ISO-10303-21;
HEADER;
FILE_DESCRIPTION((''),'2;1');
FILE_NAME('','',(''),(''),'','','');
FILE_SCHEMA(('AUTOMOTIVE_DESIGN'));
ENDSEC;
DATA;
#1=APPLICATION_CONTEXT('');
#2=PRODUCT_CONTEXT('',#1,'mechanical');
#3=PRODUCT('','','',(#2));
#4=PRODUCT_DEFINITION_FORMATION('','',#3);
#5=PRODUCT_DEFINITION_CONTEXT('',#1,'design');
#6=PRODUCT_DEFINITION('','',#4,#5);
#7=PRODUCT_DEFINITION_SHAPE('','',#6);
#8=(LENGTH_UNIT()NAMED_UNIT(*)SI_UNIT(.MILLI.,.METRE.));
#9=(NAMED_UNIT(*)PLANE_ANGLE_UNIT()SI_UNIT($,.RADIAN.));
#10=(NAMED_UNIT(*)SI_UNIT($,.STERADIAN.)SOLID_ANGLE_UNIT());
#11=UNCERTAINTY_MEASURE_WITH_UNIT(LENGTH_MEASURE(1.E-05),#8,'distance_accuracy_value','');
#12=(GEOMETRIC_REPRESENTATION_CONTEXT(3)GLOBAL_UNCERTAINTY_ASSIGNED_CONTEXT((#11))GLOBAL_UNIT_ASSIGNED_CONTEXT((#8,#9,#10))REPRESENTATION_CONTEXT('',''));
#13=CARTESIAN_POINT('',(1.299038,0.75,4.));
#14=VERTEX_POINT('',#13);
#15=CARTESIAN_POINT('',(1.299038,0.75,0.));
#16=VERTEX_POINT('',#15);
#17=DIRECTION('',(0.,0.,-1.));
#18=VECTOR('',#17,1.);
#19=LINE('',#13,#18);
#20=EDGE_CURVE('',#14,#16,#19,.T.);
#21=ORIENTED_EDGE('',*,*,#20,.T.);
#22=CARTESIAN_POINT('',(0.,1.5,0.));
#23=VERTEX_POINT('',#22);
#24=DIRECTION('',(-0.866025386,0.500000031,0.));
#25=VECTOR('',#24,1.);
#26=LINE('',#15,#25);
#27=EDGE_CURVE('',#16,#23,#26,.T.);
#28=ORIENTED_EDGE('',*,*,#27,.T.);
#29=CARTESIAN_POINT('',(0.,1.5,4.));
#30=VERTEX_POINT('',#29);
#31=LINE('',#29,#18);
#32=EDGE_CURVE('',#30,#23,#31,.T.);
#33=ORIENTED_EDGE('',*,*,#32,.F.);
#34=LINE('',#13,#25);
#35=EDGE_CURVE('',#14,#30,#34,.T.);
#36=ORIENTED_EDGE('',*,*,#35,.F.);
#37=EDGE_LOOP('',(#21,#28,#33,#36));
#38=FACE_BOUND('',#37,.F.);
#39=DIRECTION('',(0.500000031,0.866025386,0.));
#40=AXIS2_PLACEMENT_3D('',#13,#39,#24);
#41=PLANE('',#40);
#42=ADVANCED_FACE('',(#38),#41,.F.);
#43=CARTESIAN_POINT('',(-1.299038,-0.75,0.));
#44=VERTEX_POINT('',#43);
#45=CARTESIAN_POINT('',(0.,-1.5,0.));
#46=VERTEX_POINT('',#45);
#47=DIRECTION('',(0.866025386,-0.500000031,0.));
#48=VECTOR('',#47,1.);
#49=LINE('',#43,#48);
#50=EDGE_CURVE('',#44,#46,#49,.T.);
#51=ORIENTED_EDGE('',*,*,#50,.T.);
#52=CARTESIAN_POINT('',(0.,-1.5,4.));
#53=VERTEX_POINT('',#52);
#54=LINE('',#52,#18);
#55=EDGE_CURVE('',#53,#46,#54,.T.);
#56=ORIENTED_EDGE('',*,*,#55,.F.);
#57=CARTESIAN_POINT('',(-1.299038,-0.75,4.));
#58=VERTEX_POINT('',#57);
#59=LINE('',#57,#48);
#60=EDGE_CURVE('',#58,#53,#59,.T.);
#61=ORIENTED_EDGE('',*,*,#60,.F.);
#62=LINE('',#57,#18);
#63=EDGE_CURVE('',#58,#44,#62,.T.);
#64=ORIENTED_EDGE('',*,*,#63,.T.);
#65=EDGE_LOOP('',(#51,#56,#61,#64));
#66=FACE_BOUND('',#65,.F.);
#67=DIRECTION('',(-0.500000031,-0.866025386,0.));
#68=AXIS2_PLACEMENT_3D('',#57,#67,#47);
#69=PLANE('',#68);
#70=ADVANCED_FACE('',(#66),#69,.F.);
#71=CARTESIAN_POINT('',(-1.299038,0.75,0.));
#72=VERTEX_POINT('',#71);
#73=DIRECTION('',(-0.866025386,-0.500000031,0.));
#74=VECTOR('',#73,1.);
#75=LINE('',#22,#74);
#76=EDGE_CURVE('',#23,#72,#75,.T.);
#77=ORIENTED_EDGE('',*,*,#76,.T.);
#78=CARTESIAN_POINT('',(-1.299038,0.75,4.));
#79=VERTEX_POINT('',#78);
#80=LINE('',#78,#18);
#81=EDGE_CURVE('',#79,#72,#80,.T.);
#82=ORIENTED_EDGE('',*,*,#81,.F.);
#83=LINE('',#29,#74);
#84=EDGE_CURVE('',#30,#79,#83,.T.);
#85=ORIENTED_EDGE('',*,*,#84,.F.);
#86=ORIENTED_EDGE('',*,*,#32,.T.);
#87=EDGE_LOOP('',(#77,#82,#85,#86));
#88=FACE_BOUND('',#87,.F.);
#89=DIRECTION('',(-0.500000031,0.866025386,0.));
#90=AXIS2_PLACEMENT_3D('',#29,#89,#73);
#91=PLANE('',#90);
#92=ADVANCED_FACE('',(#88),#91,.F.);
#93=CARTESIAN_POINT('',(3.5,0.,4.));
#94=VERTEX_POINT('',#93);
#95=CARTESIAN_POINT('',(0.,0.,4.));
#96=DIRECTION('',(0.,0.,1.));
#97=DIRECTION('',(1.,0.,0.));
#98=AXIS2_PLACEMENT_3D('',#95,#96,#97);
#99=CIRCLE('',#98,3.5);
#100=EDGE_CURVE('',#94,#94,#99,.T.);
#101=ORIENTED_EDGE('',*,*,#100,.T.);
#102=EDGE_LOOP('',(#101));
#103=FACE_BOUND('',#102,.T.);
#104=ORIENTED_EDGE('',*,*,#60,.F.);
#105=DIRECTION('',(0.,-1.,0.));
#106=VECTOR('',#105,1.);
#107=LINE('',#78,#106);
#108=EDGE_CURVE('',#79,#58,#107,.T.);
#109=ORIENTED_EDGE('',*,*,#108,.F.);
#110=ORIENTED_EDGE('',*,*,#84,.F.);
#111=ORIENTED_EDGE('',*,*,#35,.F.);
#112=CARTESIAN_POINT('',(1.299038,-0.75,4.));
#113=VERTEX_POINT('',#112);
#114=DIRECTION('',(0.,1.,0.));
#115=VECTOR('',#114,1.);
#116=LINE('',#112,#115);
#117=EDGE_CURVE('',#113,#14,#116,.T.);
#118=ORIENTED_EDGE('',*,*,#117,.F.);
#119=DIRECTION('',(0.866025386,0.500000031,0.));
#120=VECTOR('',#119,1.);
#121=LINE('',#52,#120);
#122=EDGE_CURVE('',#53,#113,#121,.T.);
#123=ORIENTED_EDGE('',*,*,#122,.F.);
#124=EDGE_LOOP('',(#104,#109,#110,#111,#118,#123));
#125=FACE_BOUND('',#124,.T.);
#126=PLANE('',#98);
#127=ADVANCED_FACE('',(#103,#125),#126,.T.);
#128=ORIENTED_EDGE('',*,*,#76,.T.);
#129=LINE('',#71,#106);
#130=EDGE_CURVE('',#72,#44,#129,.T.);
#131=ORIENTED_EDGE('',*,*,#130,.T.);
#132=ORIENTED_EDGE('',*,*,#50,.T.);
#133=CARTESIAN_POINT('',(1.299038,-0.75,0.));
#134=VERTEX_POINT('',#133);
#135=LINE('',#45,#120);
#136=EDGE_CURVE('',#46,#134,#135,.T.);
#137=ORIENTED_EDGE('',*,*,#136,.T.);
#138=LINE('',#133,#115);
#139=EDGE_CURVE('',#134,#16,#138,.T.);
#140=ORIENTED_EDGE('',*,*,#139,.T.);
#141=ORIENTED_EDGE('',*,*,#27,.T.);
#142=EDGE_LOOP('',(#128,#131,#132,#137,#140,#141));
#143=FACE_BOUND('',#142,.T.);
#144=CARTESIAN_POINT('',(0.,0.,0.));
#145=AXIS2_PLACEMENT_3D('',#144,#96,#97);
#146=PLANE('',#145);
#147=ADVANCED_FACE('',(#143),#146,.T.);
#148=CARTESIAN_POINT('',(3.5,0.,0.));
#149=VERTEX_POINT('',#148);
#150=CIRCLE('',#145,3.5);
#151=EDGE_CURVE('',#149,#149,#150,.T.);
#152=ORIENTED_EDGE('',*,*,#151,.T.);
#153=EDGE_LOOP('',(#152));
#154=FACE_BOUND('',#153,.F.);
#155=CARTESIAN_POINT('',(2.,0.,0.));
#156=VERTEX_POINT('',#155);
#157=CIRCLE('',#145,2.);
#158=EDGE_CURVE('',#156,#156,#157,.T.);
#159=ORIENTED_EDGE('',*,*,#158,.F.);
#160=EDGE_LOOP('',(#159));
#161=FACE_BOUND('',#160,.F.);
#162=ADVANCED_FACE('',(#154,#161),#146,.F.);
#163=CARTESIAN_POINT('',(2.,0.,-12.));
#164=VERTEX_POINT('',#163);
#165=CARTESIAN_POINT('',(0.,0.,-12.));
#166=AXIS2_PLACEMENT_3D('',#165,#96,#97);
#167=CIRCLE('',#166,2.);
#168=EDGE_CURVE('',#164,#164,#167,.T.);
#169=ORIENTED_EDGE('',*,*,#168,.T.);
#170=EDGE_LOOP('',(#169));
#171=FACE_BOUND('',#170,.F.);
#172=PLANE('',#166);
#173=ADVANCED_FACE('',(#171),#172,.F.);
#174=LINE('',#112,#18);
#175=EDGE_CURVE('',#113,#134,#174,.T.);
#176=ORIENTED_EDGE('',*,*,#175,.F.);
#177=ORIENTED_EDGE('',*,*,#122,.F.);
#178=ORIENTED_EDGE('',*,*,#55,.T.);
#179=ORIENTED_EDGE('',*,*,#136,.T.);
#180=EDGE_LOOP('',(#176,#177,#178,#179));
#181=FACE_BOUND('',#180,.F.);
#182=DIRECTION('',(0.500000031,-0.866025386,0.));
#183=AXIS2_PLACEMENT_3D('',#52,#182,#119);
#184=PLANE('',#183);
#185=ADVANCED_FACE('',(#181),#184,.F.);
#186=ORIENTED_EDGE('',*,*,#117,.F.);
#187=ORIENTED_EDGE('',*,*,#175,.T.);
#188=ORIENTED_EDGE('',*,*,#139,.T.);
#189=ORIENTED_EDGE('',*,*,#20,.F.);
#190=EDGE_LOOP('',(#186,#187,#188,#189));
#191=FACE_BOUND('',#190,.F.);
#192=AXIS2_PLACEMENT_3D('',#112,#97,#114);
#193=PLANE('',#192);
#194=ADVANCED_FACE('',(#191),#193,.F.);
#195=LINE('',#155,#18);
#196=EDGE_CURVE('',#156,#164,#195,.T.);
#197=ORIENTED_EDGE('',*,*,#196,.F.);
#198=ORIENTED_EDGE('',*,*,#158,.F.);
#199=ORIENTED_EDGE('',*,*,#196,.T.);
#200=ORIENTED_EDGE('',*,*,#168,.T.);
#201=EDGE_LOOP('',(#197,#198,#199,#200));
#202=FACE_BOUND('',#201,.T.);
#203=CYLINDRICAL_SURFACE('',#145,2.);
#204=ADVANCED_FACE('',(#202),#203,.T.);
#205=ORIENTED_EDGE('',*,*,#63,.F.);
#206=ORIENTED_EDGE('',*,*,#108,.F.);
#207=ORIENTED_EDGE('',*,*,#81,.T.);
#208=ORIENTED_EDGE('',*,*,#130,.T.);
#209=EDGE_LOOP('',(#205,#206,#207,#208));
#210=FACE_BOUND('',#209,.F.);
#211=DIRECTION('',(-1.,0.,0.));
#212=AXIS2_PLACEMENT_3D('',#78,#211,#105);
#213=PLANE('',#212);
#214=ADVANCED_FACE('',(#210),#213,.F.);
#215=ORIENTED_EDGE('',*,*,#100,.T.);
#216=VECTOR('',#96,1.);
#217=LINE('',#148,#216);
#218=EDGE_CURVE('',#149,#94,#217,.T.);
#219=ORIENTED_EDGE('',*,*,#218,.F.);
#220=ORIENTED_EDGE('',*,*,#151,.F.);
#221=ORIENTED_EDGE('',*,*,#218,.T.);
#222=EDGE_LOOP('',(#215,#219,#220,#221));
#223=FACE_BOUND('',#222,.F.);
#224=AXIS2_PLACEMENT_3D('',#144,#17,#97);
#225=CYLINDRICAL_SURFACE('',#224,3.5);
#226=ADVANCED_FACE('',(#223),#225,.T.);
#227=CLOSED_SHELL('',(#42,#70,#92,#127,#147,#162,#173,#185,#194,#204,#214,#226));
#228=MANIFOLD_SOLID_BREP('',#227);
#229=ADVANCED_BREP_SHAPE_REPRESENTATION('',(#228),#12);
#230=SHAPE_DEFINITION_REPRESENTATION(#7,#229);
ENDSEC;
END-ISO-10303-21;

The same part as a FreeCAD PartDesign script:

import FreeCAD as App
import Part
import Sketcher
from FreeCAD import Vector
Q = App.Units.Quantity

doc = App.newDocument("Part")
body = doc.addObject("PartDesign::Body", "Body")

sketch1 = body.newObject("Sketcher::SketchObject", "Sketch")
sketch1.AttachmentSupport = (doc.getObject("XY_Plane"), [""])
sketch1.MapMode = "FlatFace"
sketch1.addGeometry(Part.Circle(Vector(0, 0, 0), Vector(0, 0, 1), 3.5), False)
sketch1.addConstraint([
    Sketcher.Constraint("Coincident", 0, 3, -1, 1),
    Sketcher.Constraint("Diameter", 0, Q("7 mm")),
])
pad1 = body.newObject("PartDesign::Pad", "Pad")
pad1.Profile = sketch1
pad1.Length = 4

sketch2 = body.newObject("Sketcher::SketchObject", "Sketch001")
sketch2.AttachmentSupport = (doc.getObject("XY_Plane"), [""])
sketch2.MapMode = "FlatFace"
sketch2.addGeometry(Part.Circle(Vector(0, 0, 0), Vector(0, 0, 1), 2), False)
sketch2.addConstraint([
    Sketcher.Constraint("Coincident", 0, 3, -1, 1),
    Sketcher.Constraint("Diameter", 0, Q("4 mm")),
])
pad2 = body.newObject("PartDesign::Pad", "Pad001")
pad2.Profile = sketch2
pad2.Length = 12
pad2.Reversed = True

sketch3 = body.newObject("Sketcher::SketchObject", "Sketch002")
sketch3.AttachmentSupport = (doc.getObject("XY_Plane"), [""])
sketch3.MapMode = "FlatFace"
sketch3.AttachmentOffset = App.Placement(Vector(0, 0, 4), App.Rotation())
sketch3.addGeometry([
    Part.LineSegment(Vector(-1.299038, -0.75, 0), Vector(0, -1.5, 0)),
    Part.LineSegment(Vector(0, -1.5, 0), Vector(1.299038, -0.75, 0)),
    Part.LineSegment(Vector(1.299038, -0.75, 0), Vector(1.299038, 0.75, 0)),
    Part.LineSegment(Vector(1.299038, 0.75, 0), Vector(0, 1.5, 0)),
    Part.LineSegment(Vector(0, 1.5, 0), Vector(-1.299038, 0.75, 0)),
    Part.LineSegment(Vector(-1.299038, 0.75, 0), Vector(-1.299038, -0.75, 0)),
], False)
sketch3.addConstraint([
    Sketcher.Constraint("Coincident", 0, 2, 1, 1),
    Sketcher.Constraint("Coincident", 1, 2, 2, 1),
    Sketcher.Constraint("Coincident", 2, 2, 3, 1),
    Sketcher.Constraint("Coincident", 3, 2, 4, 1),
    Sketcher.Constraint("Coincident", 4, 2, 5, 1),
    Sketcher.Constraint("Coincident", 5, 2, 0, 1),
    Sketcher.Constraint("Vertical", 2),
    Sketcher.Constraint("Vertical", 5),
    Sketcher.Constraint("Symmetric", 0, 2, 3, 2, -1, 1),
    Sketcher.Constraint("Symmetric", 1, 2, 4, 2, -1, 1),
    Sketcher.Constraint("PointOnObject", 0, 2, -2),
    Sketcher.Constraint("Parallel", 0, 3),
    Sketcher.Constraint("Horizontal", 2, 2, 4, 2),
    Sketcher.Constraint("Angle", 0, Q("-30.000002 deg")),
    Sketcher.Constraint("DistanceY", 2, 1, 2, 2, Q("1.5 mm")),
    Sketcher.Constraint("DistanceY", 0, 2, 3, 2, Q("3 mm")),
])
pocket1 = body.newObject("PartDesign::Pocket", "Pocket")
pocket1.Profile = sketch3
pocket1.Length = 4

doc.recompute()
